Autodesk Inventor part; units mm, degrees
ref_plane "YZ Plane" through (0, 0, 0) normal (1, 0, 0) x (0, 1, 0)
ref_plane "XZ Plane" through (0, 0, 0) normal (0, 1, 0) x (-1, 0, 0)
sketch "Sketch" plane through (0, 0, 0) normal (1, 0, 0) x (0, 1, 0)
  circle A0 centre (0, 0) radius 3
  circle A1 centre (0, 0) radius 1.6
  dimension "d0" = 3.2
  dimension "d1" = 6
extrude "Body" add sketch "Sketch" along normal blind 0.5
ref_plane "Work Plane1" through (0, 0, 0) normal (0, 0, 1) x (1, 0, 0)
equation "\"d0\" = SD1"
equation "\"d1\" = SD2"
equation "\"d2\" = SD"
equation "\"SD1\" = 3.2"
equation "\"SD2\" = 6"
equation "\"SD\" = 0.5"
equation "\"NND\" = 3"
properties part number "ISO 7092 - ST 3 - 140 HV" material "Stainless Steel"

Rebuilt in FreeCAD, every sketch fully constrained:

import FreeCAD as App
import Part
import Sketcher
from FreeCAD import Vector

doc = App.newDocument("Part")
body = doc.addObject("PartDesign::Body", "Body")

# Sketch on YZ plane
sketch1 = body.newObject("Sketcher::SketchObject", "Sketch")
sketch1.AttachmentSupport = (doc.getObject("YZ_Plane"), [""])
sketch1.MapMode = "FlatFace"
sketch1.addGeometry([
    Part.Circle(Vector(0, 0, 0), Vector(0, 0, 1), 3),
    Part.Circle(Vector(0, 0, 0), Vector(0, 0, 1), 1.6),
], False)
sketch1.addConstraint([
    Sketcher.Constraint("Coincident", 0, 3, -1, 1),
    Sketcher.Constraint("Coincident", 1, 3, -1, 1),
    Sketcher.Constraint("Diameter", 0, 6.0),
    Sketcher.Constraint("Diameter", 1, 3.2),
])
pad1 = body.newObject("PartDesign::Pad", "Pad")
pad1.Profile = sketch1
pad1.Length = 0.5

doc.recompute()
